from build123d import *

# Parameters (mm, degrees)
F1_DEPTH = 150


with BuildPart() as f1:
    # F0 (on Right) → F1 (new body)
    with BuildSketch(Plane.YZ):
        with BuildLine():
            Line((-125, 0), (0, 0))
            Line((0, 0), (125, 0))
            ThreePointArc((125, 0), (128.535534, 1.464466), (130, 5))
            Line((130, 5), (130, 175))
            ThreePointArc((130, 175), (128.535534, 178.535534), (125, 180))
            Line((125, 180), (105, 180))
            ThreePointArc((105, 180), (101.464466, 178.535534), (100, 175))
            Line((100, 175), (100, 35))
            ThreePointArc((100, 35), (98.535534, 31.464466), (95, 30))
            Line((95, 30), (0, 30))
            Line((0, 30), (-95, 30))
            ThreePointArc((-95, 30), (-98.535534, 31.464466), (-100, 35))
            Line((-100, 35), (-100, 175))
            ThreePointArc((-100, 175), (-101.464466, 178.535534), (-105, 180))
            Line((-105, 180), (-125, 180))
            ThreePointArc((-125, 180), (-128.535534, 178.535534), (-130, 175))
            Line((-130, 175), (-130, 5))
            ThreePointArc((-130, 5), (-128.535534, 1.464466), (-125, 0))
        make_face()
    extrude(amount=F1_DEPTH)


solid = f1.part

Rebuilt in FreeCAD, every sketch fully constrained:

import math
import FreeCAD as App
import Part
import Sketcher

doc = App.newDocument("Part")
params = doc.addObject("Spreadsheet::Sheet", "Params")
for row, (alias, value) in enumerate([
    ("sketch1_radius", "5 mm"),
    ("sketch1_width", "250 mm"),
    ("sketch1_width2", "20 mm"),
    ("sketch1_height", "170 mm"),
    ("sketch1_height2", "140 mm"),
    ("pad1_length", "150 mm"),
], start=1):
    params.set(f"A{row}", alias)
    params.set(f"B{row}", "=" + value)
    params.setAlias(f"B{row}", alias)

body = doc.addObject("PartDesign::Body", "Body")

# Sketch on YZ plane
sketch1 = body.newObject("Sketcher::SketchObject", "Sketch")
sketch1.AttachmentSupport = (doc.getObject("YZ_Plane"), [""])
sketch1.MapMode = "FlatFace"
sketch1.addGeometry(Part.LineSegment(App.Vector(-125, 0, 0), App.Vector(125, 0, 0)), False)
sketch1.addGeometry(Part.ArcOfCircle(Part.Circle(App.Vector(125, 5, 0), App.Vector(0, 0, 1), 5), math.radians(-90.000004), math.radians(0.000004)), False)
sketch1.addGeometry(Part.LineSegment(App.Vector(130, 5, 0), App.Vector(130, 175, 0)), False)
sketch1.addGeometry(Part.ArcOfCircle(Part.Circle(App.Vector(125, 175, 0), App.Vector(0, 0, 1), 5), math.radians(-0.000004), math.radians(90.000004)), False)
sketch1.addGeometry(Part.LineSegment(App.Vector(125, 180, 0), App.Vector(105, 180, 0)), False)
sketch1.addGeometry(Part.ArcOfCircle(Part.Circle(App.Vector(105, 175, 0), App.Vector(0, 0, 1), 5), math.radians(89.999996), math.radians(180.000004)), False)
sketch1.addGeometry(Part.LineSegment(App.Vector(100, 175, 0), App.Vector(100, 35, 0)), False)
sketch1.addGeometry(Part.ArcOfCircle(Part.Circle(App.Vector(95, 35, 0), App.Vector(0, 0, 1), 5), math.radians(-90.000004), math.radians(0.000004)), False)
sketch1.addGeometry(Part.LineSegment(App.Vector(95, 30, 0), App.Vector(-95, 30, 0)), False)
sketch1.addGeometry(Part.ArcOfCircle(Part.Circle(App.Vector(-95, 35, 0), App.Vector(0, 0, 1), 5), math.radians(179.999996), math.radians(270.000004)), False)
sketch1.addGeometry(Part.LineSegment(App.Vector(-100, 35, 0), App.Vector(-100, 175, 0)), False)
sketch1.addGeometry(Part.ArcOfCircle(Part.Circle(App.Vector(-105, 175, 0), App.Vector(0, 0, 1), 5), math.radians(-0.000004), math.radians(90.000004)), False)
sketch1.addGeometry(Part.LineSegment(App.Vector(-105, 180, 0), App.Vector(-125, 180, 0)), False)
sketch1.addGeometry(Part.ArcOfCircle(Part.Circle(App.Vector(-125, 175, 0), App.Vector(0, 0, 1), 5), math.radians(89.999996), math.radians(180.000004)), False)
sketch1.addGeometry(Part.LineSegment(App.Vector(-130, 175, 0), App.Vector(-130, 5, 0)), False)
sketch1.addGeometry(Part.ArcOfCircle(Part.Circle(App.Vector(-125, 5, 0), App.Vector(0, 0, 1), 5), math.radians(179.999996), math.radians(270.000004)), False)
sketch1.addConstraint(Sketcher.Constraint("Tangent", 0, 2, 1, 1))
sketch1.addConstraint(Sketcher.Constraint("Tangent", 1, 2, 2, 1))
sketch1.addConstraint(Sketcher.Constraint("Tangent", 2, 2, 3, 1))
sketch1.addConstraint(Sketcher.Constraint("Tangent", 3, 2, 4, 1))
sketch1.addConstraint(Sketcher.Constraint("Tangent", 4, 2, 5, 1))
sketch1.addConstraint(Sketcher.Constraint("Tangent", 5, 2, 6, 1))
sketch1.addConstraint(Sketcher.Constraint("Tangent", 6, 2, 7, 2))
sketch1.addConstraint(Sketcher.Constraint("Tangent", 7, 1, 8, 1))
sketch1.addConstraint(Sketcher.Constraint("Tangent", 8, 2, 9, 2))
sketch1.addConstraint(Sketcher.Constraint("Tangent", 9, 1, 10, 1))
sketch1.addConstraint(Sketcher.Constraint("Tangent", 10, 2, 11, 1))
sketch1.addConstraint(Sketcher.Constraint("Tangent", 11, 2, 12, 1))
sketch1.addConstraint(Sketcher.Constraint("Tangent", 12, 2, 13, 1))
sketch1.addConstraint(Sketcher.Constraint("Tangent", 13, 2, 14, 1))
sketch1.addConstraint(Sketcher.Constraint("Tangent", 14, 2, 15, 1))
sketch1.addConstraint(Sketcher.Constraint("Tangent", 15, 2, 0, 1))
sketch1.addConstraint(Sketcher.Constraint("Horizontal", 0))
sketch1.addConstraint(Sketcher.Constraint("Vertical", 2))
sketch1.addConstraint(Sketcher.Constraint("Horizontal", 4))
sketch1.addConstraint(Sketcher.Constraint("Vertical", 6))
sketch1.addConstraint(Sketcher.Constraint("Horizontal", 8))
sketch1.addConstraint(Sketcher.Constraint("Vertical", 10))
sketch1.addConstraint(Sketcher.Constraint("Horizontal", 12))
sketch1.addConstraint(Sketcher.Constraint("Vertical", 14))
sketch1.addConstraint(Sketcher.Constraint("Equal", 1, 3))
sketch1.addConstraint(Sketcher.Constraint("Equal", 3, 5))
sketch1.addConstraint(Sketcher.Constraint("Equal", 5, 7))
sketch1.addConstraint(Sketcher.Constraint("Equal", 7, 9))
sketch1.addConstraint(Sketcher.Constraint("Equal", 9, 11))
sketch1.addConstraint(Sketcher.Constraint("Equal", 11, 13))
sketch1.addConstraint(Sketcher.Constraint("Equal", 13, 15))
sketch1.addConstraint(Sketcher.Constraint("Symmetric", 0, 2, 15, 2, -1, 1))
sketch1.addConstraint(Sketcher.Constraint("Symmetric", 5, 3, 11, 3, -2))
sketch1.addConstraint(Sketcher.Constraint("Radius", 1, 5.0))
sketch1.addConstraint(Sketcher.Constraint("DistanceX", 0, 1, 0, 2, 250.0))
sketch1.addConstraint(Sketcher.Constraint("DistanceX", 4, 2, 4, 1, 20.0))
sketch1.addConstraint(Sketcher.Constraint("DistanceY", 2, 1, 2, 2, 170.0))
sketch1.addConstraint(Sketcher.Constraint("DistanceY", 6, 2, 6, 1, 140.0))
sketch1.setExpression("Constraints[33]", "Params.sketch1_radius")
sketch1.setExpression("Constraints[34]", "Params.sketch1_width")
sketch1.setExpression("Constraints[35]", "Params.sketch1_width2")
sketch1.setExpression("Constraints[36]", "Params.sketch1_height")
sketch1.setExpression("Constraints[37]", "Params.sketch1_height2")
pad1 = body.newObject("PartDesign::Pad", "Pad")
pad1.Profile = sketch1
pad1.setExpression("Length", "Params.pad1_length")

doc.recompute()
